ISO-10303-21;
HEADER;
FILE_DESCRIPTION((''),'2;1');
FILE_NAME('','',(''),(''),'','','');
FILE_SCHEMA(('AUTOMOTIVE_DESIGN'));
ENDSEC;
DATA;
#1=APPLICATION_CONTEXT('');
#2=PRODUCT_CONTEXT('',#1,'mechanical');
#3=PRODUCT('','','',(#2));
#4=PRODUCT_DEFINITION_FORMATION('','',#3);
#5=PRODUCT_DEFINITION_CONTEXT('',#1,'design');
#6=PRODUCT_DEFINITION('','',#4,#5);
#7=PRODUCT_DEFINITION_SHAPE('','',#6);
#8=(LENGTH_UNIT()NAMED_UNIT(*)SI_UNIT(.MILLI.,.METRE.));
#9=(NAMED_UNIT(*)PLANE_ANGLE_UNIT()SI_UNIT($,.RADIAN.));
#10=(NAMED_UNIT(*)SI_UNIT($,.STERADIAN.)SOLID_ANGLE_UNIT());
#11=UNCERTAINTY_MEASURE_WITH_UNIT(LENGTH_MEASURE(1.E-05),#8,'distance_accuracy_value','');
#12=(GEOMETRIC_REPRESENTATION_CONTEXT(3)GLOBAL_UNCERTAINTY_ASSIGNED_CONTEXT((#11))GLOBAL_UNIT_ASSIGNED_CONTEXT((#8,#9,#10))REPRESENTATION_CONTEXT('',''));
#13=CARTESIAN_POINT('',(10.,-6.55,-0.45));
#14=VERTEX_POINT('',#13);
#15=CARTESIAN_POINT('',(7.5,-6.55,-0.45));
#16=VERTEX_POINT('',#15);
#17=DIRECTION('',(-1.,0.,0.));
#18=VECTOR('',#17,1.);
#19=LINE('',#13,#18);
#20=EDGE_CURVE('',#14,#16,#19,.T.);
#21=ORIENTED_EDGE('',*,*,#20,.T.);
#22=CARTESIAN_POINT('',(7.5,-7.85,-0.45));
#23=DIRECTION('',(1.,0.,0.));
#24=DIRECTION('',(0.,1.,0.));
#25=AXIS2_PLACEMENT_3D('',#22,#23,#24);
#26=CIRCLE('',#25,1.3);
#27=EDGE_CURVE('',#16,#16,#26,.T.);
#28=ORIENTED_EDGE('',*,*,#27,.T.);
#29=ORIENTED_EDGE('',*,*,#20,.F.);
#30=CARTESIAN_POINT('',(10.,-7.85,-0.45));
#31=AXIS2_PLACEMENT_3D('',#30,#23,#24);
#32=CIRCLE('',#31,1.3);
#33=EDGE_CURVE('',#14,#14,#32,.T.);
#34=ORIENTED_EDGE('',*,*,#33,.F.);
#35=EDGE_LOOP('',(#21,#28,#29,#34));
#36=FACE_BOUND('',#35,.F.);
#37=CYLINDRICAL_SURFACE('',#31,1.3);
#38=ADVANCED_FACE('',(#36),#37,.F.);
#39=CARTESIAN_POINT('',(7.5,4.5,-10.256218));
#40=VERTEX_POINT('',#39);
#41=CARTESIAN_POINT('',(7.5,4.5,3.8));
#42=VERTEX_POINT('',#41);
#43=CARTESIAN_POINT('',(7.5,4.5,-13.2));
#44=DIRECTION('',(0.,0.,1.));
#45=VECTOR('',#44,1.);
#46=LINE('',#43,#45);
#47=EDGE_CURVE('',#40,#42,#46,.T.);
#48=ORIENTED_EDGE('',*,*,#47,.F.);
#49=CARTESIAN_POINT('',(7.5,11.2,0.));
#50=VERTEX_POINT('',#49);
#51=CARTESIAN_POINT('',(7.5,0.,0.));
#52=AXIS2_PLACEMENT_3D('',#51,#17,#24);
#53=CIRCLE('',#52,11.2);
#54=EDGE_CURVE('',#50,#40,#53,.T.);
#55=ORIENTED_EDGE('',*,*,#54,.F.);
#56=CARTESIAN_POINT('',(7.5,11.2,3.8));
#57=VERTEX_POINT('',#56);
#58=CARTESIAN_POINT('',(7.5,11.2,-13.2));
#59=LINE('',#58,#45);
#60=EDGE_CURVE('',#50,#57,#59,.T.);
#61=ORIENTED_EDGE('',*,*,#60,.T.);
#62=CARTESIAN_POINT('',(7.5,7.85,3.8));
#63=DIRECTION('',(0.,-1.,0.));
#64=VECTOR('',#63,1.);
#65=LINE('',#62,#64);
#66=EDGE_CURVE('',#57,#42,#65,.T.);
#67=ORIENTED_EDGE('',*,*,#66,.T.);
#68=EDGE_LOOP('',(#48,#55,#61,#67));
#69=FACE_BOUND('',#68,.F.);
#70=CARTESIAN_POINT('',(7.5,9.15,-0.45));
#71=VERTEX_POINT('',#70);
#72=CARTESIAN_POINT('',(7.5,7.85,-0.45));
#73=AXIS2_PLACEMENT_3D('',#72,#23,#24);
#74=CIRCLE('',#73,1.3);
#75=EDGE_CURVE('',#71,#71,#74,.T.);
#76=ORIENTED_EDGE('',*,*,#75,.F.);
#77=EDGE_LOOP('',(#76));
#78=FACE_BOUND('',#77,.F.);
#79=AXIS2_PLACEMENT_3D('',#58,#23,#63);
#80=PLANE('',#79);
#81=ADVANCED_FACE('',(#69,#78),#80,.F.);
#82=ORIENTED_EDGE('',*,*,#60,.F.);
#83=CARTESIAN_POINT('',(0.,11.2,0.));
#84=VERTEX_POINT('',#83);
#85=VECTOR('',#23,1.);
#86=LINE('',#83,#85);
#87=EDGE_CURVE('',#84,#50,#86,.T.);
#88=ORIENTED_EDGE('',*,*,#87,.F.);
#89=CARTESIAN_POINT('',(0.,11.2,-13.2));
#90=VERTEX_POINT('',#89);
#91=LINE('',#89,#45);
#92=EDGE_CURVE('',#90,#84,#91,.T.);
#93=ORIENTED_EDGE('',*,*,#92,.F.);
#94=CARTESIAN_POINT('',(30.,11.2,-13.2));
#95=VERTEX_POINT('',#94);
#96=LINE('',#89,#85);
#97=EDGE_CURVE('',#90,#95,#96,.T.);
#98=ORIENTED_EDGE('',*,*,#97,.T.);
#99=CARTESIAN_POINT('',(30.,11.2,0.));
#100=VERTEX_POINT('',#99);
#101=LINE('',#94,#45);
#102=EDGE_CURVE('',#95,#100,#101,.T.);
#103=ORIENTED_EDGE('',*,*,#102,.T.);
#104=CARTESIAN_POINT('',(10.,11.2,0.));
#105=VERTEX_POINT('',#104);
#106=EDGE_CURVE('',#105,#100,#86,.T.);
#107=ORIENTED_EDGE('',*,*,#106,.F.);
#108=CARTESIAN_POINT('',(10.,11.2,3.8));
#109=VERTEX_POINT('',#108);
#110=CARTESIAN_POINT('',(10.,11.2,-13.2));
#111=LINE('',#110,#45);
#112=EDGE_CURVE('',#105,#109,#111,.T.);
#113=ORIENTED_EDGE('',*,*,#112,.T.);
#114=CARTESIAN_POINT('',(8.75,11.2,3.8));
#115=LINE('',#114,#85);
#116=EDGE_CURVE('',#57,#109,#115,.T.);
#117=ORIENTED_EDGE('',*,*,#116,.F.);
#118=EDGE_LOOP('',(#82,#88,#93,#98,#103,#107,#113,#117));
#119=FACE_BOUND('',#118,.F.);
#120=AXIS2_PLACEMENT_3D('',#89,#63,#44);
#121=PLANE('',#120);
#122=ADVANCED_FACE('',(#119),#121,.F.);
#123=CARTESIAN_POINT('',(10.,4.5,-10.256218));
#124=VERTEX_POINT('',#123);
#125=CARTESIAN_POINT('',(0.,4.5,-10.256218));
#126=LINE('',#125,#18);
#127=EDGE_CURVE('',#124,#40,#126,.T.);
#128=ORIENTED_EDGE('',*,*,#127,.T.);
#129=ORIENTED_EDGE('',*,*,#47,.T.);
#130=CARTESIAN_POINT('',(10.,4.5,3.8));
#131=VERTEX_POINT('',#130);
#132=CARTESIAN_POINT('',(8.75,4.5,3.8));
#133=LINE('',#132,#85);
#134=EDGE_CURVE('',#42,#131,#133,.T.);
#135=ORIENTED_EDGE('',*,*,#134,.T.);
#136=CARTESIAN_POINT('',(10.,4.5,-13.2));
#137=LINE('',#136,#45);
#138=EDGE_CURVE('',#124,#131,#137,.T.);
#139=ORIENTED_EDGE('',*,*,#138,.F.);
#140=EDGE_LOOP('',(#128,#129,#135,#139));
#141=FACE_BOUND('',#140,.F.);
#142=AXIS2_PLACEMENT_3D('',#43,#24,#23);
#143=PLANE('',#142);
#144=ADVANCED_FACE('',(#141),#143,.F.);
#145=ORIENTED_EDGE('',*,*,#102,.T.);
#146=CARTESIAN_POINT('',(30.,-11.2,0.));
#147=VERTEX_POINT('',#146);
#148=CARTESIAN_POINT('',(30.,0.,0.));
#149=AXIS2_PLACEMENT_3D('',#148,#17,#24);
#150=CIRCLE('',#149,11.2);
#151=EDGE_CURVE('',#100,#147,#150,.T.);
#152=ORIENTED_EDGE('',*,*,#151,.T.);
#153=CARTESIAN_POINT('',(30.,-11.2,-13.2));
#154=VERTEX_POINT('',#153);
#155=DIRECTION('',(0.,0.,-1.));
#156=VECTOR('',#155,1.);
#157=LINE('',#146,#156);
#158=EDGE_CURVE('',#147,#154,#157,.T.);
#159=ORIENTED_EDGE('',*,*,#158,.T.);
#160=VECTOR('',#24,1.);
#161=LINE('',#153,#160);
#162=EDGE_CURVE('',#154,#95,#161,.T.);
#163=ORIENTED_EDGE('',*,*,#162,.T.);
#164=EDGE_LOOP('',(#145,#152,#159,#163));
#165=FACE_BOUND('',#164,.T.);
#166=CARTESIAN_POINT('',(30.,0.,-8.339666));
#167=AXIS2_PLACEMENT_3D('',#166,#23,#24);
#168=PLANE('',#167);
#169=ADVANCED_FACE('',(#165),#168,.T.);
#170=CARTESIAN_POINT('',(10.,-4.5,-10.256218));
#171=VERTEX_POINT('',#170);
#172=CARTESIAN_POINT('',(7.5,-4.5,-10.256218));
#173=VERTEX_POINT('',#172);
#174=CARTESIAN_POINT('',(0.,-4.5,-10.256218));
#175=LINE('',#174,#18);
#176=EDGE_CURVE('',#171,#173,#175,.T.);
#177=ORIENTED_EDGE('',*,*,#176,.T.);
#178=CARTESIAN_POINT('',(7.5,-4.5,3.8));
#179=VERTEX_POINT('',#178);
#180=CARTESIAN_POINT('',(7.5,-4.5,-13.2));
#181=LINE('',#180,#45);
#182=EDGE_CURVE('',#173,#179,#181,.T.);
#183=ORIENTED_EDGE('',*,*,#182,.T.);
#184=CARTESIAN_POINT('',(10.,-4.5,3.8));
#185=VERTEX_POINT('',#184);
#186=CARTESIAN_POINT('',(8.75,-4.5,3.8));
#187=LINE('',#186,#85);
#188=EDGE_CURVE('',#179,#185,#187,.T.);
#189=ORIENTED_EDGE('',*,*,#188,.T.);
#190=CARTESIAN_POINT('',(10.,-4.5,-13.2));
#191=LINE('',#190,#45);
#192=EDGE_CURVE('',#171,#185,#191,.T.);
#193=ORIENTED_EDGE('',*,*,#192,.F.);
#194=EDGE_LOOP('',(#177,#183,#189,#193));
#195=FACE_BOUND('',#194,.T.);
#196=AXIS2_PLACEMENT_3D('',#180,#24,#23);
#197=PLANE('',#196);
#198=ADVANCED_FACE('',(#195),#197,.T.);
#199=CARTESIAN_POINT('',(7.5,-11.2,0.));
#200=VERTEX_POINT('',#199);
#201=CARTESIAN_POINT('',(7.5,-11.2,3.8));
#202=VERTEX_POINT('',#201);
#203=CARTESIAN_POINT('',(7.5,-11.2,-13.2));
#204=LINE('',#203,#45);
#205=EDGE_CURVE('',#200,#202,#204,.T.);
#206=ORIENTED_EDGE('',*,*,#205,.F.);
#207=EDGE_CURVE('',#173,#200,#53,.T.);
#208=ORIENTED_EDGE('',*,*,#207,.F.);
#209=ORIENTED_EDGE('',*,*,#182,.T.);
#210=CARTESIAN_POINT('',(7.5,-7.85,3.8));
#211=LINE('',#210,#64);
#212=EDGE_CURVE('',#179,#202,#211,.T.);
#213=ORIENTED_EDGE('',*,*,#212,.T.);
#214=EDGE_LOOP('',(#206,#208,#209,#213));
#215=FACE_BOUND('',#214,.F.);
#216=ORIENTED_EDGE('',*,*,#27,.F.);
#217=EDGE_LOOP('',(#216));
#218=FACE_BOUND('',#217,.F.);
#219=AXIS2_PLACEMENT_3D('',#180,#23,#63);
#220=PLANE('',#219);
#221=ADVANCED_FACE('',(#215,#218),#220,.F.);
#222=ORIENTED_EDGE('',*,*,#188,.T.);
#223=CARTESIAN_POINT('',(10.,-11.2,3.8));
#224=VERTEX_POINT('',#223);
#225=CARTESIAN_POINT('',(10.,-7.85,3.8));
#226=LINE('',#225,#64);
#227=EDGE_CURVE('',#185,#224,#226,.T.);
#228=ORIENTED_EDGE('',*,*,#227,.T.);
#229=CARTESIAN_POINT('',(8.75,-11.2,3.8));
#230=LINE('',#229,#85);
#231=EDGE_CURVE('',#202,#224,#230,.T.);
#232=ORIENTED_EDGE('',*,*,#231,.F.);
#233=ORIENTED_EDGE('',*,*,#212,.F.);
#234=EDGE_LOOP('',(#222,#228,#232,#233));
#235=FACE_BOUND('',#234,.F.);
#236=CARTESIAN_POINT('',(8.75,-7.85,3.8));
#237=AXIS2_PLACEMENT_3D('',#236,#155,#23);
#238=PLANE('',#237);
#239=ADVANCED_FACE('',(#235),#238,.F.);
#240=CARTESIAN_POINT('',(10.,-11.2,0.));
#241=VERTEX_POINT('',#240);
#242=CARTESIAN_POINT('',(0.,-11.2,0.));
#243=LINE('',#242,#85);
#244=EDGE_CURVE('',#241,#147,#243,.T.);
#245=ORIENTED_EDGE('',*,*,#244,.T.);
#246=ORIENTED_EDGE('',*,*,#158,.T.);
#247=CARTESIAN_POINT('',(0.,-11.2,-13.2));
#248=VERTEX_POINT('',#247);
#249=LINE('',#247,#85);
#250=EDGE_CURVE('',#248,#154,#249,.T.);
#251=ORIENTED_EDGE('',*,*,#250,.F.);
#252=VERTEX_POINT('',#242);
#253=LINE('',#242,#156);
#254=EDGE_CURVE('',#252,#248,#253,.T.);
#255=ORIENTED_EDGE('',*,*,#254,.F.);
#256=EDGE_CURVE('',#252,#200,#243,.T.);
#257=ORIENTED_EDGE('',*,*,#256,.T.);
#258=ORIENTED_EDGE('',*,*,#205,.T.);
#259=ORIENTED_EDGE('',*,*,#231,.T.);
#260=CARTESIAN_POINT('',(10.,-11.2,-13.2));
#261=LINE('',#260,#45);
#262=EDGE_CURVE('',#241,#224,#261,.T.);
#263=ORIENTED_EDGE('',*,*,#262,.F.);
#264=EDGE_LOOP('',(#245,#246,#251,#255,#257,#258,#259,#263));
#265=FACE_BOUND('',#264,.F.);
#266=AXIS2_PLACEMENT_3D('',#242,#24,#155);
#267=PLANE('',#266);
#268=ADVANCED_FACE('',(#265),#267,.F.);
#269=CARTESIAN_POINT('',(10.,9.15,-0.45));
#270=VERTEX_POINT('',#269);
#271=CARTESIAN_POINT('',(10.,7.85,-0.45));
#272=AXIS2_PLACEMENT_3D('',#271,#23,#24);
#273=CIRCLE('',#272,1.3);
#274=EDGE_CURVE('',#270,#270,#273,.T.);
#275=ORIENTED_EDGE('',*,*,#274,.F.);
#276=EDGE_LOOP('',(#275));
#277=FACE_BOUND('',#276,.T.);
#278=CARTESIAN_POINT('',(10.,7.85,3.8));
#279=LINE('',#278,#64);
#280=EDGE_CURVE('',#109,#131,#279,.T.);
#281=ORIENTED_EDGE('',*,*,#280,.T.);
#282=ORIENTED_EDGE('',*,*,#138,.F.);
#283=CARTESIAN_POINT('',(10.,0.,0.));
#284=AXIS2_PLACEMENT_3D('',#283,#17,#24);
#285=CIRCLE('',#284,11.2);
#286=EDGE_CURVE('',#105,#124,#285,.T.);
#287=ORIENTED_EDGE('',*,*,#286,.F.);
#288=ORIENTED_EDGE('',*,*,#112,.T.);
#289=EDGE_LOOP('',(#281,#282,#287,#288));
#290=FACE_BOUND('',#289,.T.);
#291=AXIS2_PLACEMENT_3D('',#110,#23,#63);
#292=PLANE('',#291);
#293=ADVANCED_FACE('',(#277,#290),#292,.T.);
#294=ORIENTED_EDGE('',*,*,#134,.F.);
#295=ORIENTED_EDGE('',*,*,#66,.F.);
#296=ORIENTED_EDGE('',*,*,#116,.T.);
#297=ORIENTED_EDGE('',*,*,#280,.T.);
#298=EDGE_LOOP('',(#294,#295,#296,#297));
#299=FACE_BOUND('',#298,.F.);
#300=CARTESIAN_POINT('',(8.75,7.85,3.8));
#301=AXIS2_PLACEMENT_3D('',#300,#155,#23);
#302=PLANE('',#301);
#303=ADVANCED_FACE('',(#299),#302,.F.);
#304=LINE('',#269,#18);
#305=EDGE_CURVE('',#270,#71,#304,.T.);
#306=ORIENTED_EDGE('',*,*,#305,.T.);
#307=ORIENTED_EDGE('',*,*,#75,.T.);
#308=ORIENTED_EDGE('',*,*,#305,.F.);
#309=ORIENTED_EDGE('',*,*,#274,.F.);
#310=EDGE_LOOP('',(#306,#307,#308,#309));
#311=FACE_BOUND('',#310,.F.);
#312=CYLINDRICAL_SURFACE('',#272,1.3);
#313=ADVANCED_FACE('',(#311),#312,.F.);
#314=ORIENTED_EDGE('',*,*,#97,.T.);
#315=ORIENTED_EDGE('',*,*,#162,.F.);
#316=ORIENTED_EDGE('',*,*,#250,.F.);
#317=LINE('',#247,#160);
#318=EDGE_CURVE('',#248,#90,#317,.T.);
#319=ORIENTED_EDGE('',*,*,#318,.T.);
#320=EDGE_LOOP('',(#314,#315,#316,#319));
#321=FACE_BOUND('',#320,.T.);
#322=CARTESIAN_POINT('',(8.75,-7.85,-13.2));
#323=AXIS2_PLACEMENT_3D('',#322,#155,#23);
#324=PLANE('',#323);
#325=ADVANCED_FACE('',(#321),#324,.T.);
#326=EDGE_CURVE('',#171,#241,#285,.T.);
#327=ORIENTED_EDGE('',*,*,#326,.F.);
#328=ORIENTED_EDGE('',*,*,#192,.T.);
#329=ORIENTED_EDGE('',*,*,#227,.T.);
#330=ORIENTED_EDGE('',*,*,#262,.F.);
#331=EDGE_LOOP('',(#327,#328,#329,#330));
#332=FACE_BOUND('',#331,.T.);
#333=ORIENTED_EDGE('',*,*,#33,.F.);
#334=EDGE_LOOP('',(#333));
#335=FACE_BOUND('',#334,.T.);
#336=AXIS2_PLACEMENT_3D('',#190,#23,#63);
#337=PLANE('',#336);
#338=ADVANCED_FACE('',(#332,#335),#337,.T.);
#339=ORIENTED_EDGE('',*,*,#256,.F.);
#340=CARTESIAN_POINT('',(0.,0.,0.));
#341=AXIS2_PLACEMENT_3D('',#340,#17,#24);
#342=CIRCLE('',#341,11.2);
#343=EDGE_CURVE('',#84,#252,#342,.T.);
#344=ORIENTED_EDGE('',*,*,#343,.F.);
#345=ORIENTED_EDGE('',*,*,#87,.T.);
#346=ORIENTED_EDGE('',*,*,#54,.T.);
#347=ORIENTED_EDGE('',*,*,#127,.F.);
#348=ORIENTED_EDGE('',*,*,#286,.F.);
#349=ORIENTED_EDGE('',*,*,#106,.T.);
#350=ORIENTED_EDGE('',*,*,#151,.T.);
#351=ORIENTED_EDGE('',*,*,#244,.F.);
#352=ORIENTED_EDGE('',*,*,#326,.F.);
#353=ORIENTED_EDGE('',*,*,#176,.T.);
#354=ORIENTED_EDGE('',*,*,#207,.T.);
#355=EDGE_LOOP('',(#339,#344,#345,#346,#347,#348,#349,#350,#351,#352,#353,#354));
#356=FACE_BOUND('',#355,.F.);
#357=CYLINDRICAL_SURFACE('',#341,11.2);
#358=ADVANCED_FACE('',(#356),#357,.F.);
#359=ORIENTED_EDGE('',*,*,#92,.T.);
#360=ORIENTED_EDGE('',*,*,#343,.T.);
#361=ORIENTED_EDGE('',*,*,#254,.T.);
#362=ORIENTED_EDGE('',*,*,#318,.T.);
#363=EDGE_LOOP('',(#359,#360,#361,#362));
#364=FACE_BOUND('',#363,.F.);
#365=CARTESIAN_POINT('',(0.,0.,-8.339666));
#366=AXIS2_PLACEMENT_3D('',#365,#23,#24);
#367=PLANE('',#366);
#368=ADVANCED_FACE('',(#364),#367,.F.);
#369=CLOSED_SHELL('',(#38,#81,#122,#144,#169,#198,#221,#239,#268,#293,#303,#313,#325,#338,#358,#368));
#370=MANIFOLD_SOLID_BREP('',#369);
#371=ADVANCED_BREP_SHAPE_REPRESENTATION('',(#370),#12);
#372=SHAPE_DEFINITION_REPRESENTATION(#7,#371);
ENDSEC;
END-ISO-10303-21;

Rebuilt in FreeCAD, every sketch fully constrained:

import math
import FreeCAD as App
import Part
import Sketcher


def add_polygon(sketch, points):
    """Adds a closed chain of lines whose ends are joined by coincident constraints."""
    first, n = sketch.GeometryCount, len(points)
    for a, b in zip(points, points[1:] + points[:1]):
        sketch.addGeometry(Part.LineSegment(App.Vector(*a, 0), App.Vector(*b, 0)), False)
    for i in range(n):
        sketch.addConstraint(Sketcher.Constraint("Coincident", first + i, 2, first + (i + 1) % n, 1))

doc = App.newDocument("Part")
body = doc.addObject("PartDesign::Body", "Body")

# Sketch on YZ plane
sketch1 = doc.addObject("Sketcher::SketchObject", "Sketch")
body.addObject(sketch1)
sketch1.AttachmentSupport = (doc.YZ_Plane, [""])
sketch1.MapMode = "FlatFace"
sketch1.addGeometry(Part.LineSegment(App.Vector(-11, 0, 0), App.Vector(-11, -13, 0)), False)
sketch1.addGeometry(Part.LineSegment(App.Vector(-11, -13, 0), App.Vector(11, -13, 0)), False)
sketch1.addGeometry(Part.LineSegment(App.Vector(11, -13, 0), App.Vector(11, 0, 0)), False)
sketch1.addGeometry(Part.ArcOfCircle(Part.Circle(App.Vector(0, 0, 0), App.Vector(0, 0, 1), 11), math.radians(180), math.radians(360)), False)
sketch1.addConstraint(Sketcher.Constraint("Coincident", 0, 2, 1, 1))
sketch1.addConstraint(Sketcher.Constraint("Coincident", 1, 2, 2, 1))
sketch1.addConstraint(Sketcher.Constraint("Tangent", 2, 2, 3, 2))
sketch1.addConstraint(Sketcher.Constraint("Tangent", 3, 1, 0, 1))
sketch1.addConstraint(Sketcher.Constraint("Vertical", 0))
sketch1.addConstraint(Sketcher.Constraint("Horizontal", 1))
sketch1.addConstraint(Sketcher.Constraint("Vertical", 2))
sketch1.addConstraint(Sketcher.Constraint("Coincident", 3, 3, -1, 1))
sketch1.addConstraint(Sketcher.Constraint("Radius", 3, 11.2))
sketch1.addConstraint(Sketcher.Constraint("DistanceY", 0, 2, 0, 1, 13.2))
pad1 = doc.addObject("PartDesign::Pad", "Pad")
body.addObject(pad1)
pad1.Profile = sketch1
pad1.Length = 30

# Sketch on XY plane
sketch2 = doc.addObject("Sketcher::SketchObject", "Sketch001")
body.addObject(sketch2)
sketch2.AttachmentSupport = (doc.XY_Plane, [""])
sketch2.MapMode = "FlatFace"
sketch2.AttachmentOffset = App.Placement(App.Vector(0, 0, -13.2), App.Rotation())
add_polygon(sketch2, [(7.5, -11.2), (7.5, -4.5), (10, -4.5), (10, -11.2)])  # lines 0-3
add_polygon(sketch2, [(7.5, 4.5), (7.5, 11.2), (10, 11.2), (10, 4.5)])  # lines 4-7
sketch2.addConstraint(Sketcher.Constraint("Vertical", 0))
sketch2.addConstraint(Sketcher.Constraint("Horizontal", 1))
sketch2.addConstraint(Sketcher.Constraint("Vertical", 2))
sketch2.addConstraint(Sketcher.Constraint("Horizontal", 3))
sketch2.addConstraint(Sketcher.Constraint("Vertical", 4))
sketch2.addConstraint(Sketcher.Constraint("Horizontal", 5))
sketch2.addConstraint(Sketcher.Constraint("Vertical", 6))
sketch2.addConstraint(Sketcher.Constraint("Horizontal", 7))
sketch2.addConstraint(Sketcher.Constraint("Symmetric", 3, 2, 4, 2, -1))
sketch2.addConstraint(Sketcher.Constraint("Symmetric", 1, 2, 6, 2, -1))
sketch2.addConstraint(Sketcher.Constraint("DistanceX", 1, 1, 1, 2, 2.5))
sketch2.addConstraint(Sketcher.Constraint("DistanceY", 0, 1, 0, 2, 6.7))
sketch2.addConstraint(Sketcher.Constraint("DistanceX", -1, 1, 1, 2, 10.0))
sketch2.addConstraint(Sketcher.Constraint("DistanceY", 1, 2, 6, 2, 9.0))
pad2 = doc.addObject("PartDesign::Pad", "Pad001")
body.addObject(pad2)
pad2.Profile = sketch2
pad2.Length = 17

# Sketch on YZ plane
sketch3 = doc.addObject("Sketcher::SketchObject", "Sketch002")
body.addObject(sketch3)
sketch3.AttachmentSupport = (doc.YZ_Plane, [""])
sketch3.MapMode = "FlatFace"
sketch3.AttachmentOffset = App.Placement(App.Vector(0, 0, 10), App.Rotation())
sketch3.addGeometry(Part.Circle(App.Vector(-7.8, -0.5, 0), App.Vector(0, 0, 1), 1.3), False)
sketch3.addGeometry(Part.Circle(App.Vector(7.8, -0.5, 0), App.Vector(0, 0, 1), 1.3), False)
sketch3.addConstraint(Sketcher.Constraint("Equal", 0, 1))
sketch3.addConstraint(Sketcher.Constraint("Symmetric", 0, 3, 1, 3, -2))
sketch3.addConstraint(Sketcher.Constraint("Diameter", 0, 2.6))
sketch3.addConstraint(Sketcher.Constraint("DistanceX", 0, 3, 1, 3, 15.7))
sketch3.addConstraint(Sketcher.Constraint("DistanceY", 0, 3, -1, 1, 0.45))
pocket1 = doc.addObject("PartDesign::Pocket", "Pocket")
body.addObject(pocket1)
pocket1.Profile = sketch3
pocket1.Type = "ThroughAll"

doc.recompute()
